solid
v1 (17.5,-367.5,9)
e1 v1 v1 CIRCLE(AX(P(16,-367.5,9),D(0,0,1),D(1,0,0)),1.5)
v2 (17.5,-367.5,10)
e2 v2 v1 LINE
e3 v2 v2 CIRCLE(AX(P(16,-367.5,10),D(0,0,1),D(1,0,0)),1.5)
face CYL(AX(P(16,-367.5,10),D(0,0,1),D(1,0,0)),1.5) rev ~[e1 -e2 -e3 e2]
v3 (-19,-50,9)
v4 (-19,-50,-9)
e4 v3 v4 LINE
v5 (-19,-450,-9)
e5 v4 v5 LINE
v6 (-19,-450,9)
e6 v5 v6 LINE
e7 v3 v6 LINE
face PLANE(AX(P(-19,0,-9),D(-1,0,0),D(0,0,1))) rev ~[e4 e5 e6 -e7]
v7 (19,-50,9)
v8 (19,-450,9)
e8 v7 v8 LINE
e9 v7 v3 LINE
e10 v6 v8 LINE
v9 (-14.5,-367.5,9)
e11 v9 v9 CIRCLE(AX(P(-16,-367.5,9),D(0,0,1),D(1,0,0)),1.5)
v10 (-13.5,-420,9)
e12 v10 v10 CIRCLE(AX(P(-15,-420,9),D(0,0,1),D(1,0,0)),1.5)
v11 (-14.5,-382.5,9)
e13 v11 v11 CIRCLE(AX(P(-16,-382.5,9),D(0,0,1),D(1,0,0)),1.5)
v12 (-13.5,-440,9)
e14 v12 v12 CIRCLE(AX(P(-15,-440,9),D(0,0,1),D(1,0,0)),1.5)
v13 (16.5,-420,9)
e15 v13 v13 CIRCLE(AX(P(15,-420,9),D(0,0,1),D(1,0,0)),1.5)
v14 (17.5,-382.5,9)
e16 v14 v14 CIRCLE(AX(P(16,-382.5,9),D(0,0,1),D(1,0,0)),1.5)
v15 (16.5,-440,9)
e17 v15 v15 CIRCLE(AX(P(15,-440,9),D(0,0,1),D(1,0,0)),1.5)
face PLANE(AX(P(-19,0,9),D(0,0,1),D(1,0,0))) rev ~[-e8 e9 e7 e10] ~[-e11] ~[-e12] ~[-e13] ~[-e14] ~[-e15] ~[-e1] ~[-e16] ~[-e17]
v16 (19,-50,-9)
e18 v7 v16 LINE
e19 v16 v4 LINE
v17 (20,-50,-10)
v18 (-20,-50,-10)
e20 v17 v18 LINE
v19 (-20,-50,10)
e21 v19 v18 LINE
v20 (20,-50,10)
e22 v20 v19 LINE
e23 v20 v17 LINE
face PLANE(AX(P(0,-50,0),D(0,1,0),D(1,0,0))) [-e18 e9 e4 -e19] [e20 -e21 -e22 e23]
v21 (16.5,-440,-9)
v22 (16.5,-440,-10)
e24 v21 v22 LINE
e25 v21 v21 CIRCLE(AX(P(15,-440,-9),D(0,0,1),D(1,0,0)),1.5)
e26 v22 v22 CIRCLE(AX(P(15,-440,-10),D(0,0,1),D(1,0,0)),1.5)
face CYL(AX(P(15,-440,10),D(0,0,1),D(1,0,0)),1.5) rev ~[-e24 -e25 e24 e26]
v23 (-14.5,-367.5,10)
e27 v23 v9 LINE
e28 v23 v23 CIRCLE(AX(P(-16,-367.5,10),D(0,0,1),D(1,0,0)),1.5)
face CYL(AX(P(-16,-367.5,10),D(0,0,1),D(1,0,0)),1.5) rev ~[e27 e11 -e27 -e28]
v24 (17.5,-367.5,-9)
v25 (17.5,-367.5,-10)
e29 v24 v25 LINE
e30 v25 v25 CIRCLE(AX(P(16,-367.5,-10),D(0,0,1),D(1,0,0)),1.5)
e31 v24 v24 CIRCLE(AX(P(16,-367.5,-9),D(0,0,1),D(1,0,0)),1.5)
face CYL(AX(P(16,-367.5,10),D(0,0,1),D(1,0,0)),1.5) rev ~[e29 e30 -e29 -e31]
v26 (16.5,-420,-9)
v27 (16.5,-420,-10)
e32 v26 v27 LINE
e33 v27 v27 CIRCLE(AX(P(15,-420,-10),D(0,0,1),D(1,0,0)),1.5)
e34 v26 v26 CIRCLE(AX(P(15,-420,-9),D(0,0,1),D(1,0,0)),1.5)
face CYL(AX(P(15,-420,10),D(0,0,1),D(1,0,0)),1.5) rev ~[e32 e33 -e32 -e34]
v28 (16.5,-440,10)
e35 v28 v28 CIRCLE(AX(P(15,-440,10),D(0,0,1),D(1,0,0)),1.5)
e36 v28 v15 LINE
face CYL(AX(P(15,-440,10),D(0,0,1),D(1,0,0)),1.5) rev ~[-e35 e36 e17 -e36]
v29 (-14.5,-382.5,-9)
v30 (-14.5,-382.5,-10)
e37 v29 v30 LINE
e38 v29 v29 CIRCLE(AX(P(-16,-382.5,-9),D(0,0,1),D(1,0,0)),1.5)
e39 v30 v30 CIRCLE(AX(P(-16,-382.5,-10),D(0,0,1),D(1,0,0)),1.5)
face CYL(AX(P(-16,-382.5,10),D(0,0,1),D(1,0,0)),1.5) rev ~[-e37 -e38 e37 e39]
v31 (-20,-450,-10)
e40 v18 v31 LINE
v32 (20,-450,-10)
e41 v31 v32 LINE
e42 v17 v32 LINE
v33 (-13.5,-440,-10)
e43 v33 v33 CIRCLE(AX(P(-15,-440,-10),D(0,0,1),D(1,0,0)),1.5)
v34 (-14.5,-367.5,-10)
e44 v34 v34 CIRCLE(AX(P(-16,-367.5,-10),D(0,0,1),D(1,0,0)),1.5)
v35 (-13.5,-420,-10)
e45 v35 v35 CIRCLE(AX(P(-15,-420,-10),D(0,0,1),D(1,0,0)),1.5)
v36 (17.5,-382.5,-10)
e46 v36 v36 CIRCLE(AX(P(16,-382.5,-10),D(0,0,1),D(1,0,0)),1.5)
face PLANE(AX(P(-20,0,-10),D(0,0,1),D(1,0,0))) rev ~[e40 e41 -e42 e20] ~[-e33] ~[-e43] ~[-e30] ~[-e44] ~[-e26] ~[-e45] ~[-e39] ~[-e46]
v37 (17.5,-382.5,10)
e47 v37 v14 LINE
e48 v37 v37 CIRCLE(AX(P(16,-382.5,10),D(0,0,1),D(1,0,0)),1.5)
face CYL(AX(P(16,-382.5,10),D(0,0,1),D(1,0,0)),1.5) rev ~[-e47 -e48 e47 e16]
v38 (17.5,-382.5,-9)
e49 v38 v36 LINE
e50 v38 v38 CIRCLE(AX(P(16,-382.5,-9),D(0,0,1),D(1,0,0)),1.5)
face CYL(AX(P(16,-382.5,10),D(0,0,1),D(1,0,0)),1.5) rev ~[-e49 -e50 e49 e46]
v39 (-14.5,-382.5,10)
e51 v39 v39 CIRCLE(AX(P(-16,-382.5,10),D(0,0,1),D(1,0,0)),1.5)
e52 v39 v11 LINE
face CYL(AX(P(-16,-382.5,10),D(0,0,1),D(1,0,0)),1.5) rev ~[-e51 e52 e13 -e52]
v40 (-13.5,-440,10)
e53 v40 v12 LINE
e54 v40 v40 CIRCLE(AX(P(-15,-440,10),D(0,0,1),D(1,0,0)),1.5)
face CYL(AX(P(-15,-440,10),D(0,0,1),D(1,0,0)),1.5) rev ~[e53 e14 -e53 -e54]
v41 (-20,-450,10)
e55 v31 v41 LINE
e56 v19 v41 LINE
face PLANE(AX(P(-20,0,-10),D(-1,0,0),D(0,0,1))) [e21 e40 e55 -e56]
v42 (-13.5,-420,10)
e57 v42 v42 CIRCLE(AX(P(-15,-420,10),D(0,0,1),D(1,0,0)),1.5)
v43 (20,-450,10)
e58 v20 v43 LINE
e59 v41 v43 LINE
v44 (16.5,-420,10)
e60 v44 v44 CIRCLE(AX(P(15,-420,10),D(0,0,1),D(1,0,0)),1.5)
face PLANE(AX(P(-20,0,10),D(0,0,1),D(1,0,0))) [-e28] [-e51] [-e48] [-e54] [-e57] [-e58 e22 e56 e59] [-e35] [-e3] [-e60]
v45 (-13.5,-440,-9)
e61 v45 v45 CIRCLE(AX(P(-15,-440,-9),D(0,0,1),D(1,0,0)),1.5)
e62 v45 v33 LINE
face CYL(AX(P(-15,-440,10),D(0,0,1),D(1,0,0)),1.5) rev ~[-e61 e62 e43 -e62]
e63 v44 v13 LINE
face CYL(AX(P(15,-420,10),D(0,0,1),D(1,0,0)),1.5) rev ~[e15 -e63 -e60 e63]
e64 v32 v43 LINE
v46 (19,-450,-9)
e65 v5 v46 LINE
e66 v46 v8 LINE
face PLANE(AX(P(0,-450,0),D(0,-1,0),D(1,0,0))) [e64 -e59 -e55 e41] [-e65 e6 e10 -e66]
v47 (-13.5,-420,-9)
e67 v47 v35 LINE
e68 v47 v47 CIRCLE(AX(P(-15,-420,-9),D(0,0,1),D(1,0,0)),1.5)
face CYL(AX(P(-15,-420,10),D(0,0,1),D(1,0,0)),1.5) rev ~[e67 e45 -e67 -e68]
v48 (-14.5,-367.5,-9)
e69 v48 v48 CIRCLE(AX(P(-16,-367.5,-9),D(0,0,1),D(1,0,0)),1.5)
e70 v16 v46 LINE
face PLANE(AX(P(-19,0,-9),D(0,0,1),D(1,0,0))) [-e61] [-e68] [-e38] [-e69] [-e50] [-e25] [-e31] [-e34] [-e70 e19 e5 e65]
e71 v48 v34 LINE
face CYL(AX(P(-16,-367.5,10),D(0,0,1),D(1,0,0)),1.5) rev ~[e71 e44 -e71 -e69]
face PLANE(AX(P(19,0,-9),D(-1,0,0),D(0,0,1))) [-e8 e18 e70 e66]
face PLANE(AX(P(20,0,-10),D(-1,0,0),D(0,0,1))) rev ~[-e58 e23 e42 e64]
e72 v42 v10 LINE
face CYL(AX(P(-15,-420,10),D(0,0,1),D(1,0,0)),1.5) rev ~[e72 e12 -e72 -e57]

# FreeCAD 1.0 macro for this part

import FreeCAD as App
import Part
import Sketcher

V = App.Vector
Q = App.Units.Quantity

doc = App.newDocument("Part")
params = doc.addObject("Spreadsheet::Sheet", "Params")
for row, (alias, value) in enumerate([
    ("sketch1_width", "40 mm"),
    ("sketch1_width2", "38 mm"),
    ("sketch1_height", "20 mm"),
    ("sketch1_height2", "18 mm"),
    ("pad1_length", "450 mm"),
    ("sketch2_diameter", "3 mm"),
    ("pocket1_length", "51 mm"),
    ("pocket2_length", "50 mm"),
], start=1):
    params.set(f"A{row}", alias)
    params.set(f"B{row}", "=" + value)
    params.setAlias(f"B{row}", alias)

body = doc.addObject("PartDesign::Body", "Body")

# Sketch on XZ plane
sketch1 = doc.addObject("Sketcher::SketchObject", "Sketch")
body.addObject(sketch1)
sketch1.AttachmentSupport = (doc.XZ_Plane, [""])
sketch1.MapMode = "FlatFace"
sketch1.addGeometry(Part.LineSegment(V(-20, 10, 0), V(-20, -10, 0)), False)
sketch1.addGeometry(Part.LineSegment(V(-20, -10, 0), V(20, -10, 0)), False)
sketch1.addGeometry(Part.LineSegment(V(20, -10, 0), V(20, 10, 0)), False)
sketch1.addGeometry(Part.LineSegment(V(20, 10, 0), V(-20, 10, 0)), False)
sketch1.addGeometry(Part.LineSegment(V(19, -9, 0), V(-19, -9, 0)), False)
sketch1.addGeometry(Part.LineSegment(V(-19, -9, 0), V(-19, 9, 0)), False)
sketch1.addGeometry(Part.LineSegment(V(-19, 9, 0), V(19, 9, 0)), False)
sketch1.addGeometry(Part.LineSegment(V(19, 9, 0), V(19, -9, 0)), False)
sketch1.addConstraint(Sketcher.Constraint("Coincident", 0, 2, 1, 1))
sketch1.addConstraint(Sketcher.Constraint("Coincident", 1, 2, 2, 1))
sketch1.addConstraint(Sketcher.Constraint("Coincident", 2, 2, 3, 1))
sketch1.addConstraint(Sketcher.Constraint("Coincident", 3, 2, 0, 1))
sketch1.addConstraint(Sketcher.Constraint("Coincident", 4, 2, 5, 1))
sketch1.addConstraint(Sketcher.Constraint("Coincident", 5, 2, 6, 1))
sketch1.addConstraint(Sketcher.Constraint("Coincident", 6, 2, 7, 1))
sketch1.addConstraint(Sketcher.Constraint("Coincident", 7, 2, 4, 1))
sketch1.addConstraint(Sketcher.Constraint("Vertical", 0))
sketch1.addConstraint(Sketcher.Constraint("Horizontal", 1))
sketch1.addConstraint(Sketcher.Constraint("Vertical", 2))
sketch1.addConstraint(Sketcher.Constraint("Horizontal", 3))
sketch1.addConstraint(Sketcher.Constraint("Horizontal", 4))
sketch1.addConstraint(Sketcher.Constraint("Vertical", 5))
sketch1.addConstraint(Sketcher.Constraint("Horizontal", 6))
sketch1.addConstraint(Sketcher.Constraint("Vertical", 7))
sketch1.addConstraint(Sketcher.Constraint("Symmetric", 0, 2, 2, 2, -1, 1))
sketch1.addConstraint(Sketcher.Constraint("Symmetric", 4, 2, 6, 2, -1, 1))
sketch1.addConstraint(Sketcher.Constraint("DistanceX", 1, 1, 1, 2, Q("40 mm")))
sketch1.addConstraint(Sketcher.Constraint("DistanceX", 4, 2, 4, 1, Q("38 mm")))
sketch1.addConstraint(Sketcher.Constraint("DistanceY", 0, 2, 0, 1, Q("20 mm")))
sketch1.addConstraint(Sketcher.Constraint("DistanceY", 5, 1, 5, 2, Q("18 mm")))
sketch1.setExpression("Constraints[18]", "Params.sketch1_width")
sketch1.setExpression("Constraints[19]", "Params.sketch1_width2")
sketch1.setExpression("Constraints[20]", "Params.sketch1_height")
sketch1.setExpression("Constraints[21]", "Params.sketch1_height2")
pad1 = doc.addObject("PartDesign::Pad", "Pad")
body.addObject(pad1)
pad1.Profile = sketch1
pad1.setExpression("Length", "Params.pad1_length")

# Sketch on XY plane
sketch2 = doc.addObject("Sketcher::SketchObject", "Sketch001")
body.addObject(sketch2)
sketch2.AttachmentSupport = (doc.XY_Plane, [""])
sketch2.MapMode = "FlatFace"
sketch2.AttachmentOffset = App.Placement(V(0, 0, 10), App.Rotation())
sketch2.addGeometry(Part.Circle(V(16, -382.5, 0), V(0, 0, 1), 1.5), False)
sketch2.addGeometry(Part.Circle(V(16, -367.5, 0), V(0, 0, 1), 1.5), False)
sketch2.addGeometry(Part.Circle(V(-16, -367.5, 0), V(0, 0, 1), 1.5), False)
sketch2.addGeometry(Part.Circle(V(-16, -382.5, 0), V(0, 0, 1), 1.5), False)
sketch2.addGeometry(Part.Circle(V(15, -420, 0), V(0, 0, 1), 1.5), False)
sketch2.addGeometry(Part.Circle(V(-15, -420, 0), V(0, 0, 1), 1.5), False)
sketch2.addGeometry(Part.Circle(V(-15, -440, 0), V(0, 0, 1), 1.5), False)
sketch2.addGeometry(Part.Circle(V(15, -440, 0), V(0, 0, 1), 1.5), False)
sketch2.addConstraint(Sketcher.Constraint("Equal", 0, 1))
sketch2.addConstraint(Sketcher.Constraint("Equal", 1, 2))
sketch2.addConstraint(Sketcher.Constraint("Equal", 2, 3))
sketch2.addConstraint(Sketcher.Constraint("Equal", 3, 4))
sketch2.addConstraint(Sketcher.Constraint("Equal", 4, 5))
sketch2.addConstraint(Sketcher.Constraint("Equal", 5, 6))
sketch2.addConstraint(Sketcher.Constraint("Equal", 6, 7))
sketch2.addConstraint(Sketcher.Constraint("Symmetric", 1, 3, 2, 3, -2))
sketch2.addConstraint(Sketcher.Constraint("Symmetric", 0, 3, 3, 3, -2))
sketch2.addConstraint(Sketcher.Constraint("Symmetric", 4, 3, 5, 3, -2))
sketch2.addConstraint(Sketcher.Constraint("Symmetric", 6, 3, 7, 3, -2))
sketch2.addConstraint(Sketcher.Constraint("Vertical", 0, 3, 1, 3))
sketch2.addConstraint(Sketcher.Constraint("Vertical", 5, 3, 6, 3))
sketch2.addConstraint(Sketcher.Constraint("Diameter", 0, Q("3 mm")))
sketch2.addConstraint(Sketcher.Constraint("DistanceX", -1, 1, 0, 3, Q("16 mm")))
sketch2.addConstraint(Sketcher.Constraint("DistanceX", -1, 1, 4, 3, Q("15 mm")))
sketch2.addConstraint(Sketcher.Constraint("DistanceY", 4, 3, -1, 1, Q("420 mm")))
sketch2.addConstraint(Sketcher.Constraint("DistanceY", 6, 3, -1, 1, Q("440 mm")))
sketch2.addConstraint(Sketcher.Constraint("DistanceY", 0, 3, 1, 3, Q("15 mm")))
sketch2.addConstraint(Sketcher.Constraint("DistanceY", 0, 3, -1, 1, Q("382.5 mm")))
sketch2.setExpression("Constraints[13]", "Params.sketch2_diameter")
pocket1 = doc.addObject("PartDesign::Pocket", "Pocket")
body.addObject(pocket1)
pocket1.Profile = sketch2
pocket1.setExpression("Length", "Params.pocket1_length")

# Sketch on XZ plane
sketch3 = doc.addObject("Sketcher::SketchObject", "Sketch002")
body.addObject(sketch3)
sketch3.AttachmentSupport = (doc.XZ_Plane, [""])
sketch3.MapMode = "FlatFace"
sketch3.addGeometry(Part.LineSegment(V(-25, -14, 0), V(-25, 14, 0)), False)
sketch3.addGeometry(Part.LineSegment(V(-25, 14, 0), V(25, 14, 0)), False)
sketch3.addGeometry(Part.LineSegment(V(25, 14, 0), V(25, -14, 0)), False)
sketch3.addGeometry(Part.LineSegment(V(25, -14, 0), V(-25, -14, 0)), False)
sketch3.addConstraint(Sketcher.Constraint("Coincident", 0, 2, 1, 1))
sketch3.addConstraint(Sketcher.Constraint("Coincident", 1, 2, 2, 1))
sketch3.addConstraint(Sketcher.Constraint("Coincident", 2, 2, 3, 1))
sketch3.addConstraint(Sketcher.Constraint("Coincident", 3, 2, 0, 1))
sketch3.addConstraint(Sketcher.Constraint("Vertical", 0))
sketch3.addConstraint(Sketcher.Constraint("Horizontal", 1))
sketch3.addConstraint(Sketcher.Constraint("Vertical", 2))
sketch3.addConstraint(Sketcher.Constraint("Horizontal", 3))
sketch3.addConstraint(Sketcher.Constraint("Symmetric", 0, 2, 2, 2, -1, 1))
sketch3.addConstraint(Sketcher.Constraint("DistanceX", 1, 1, 1, 2, Q("50.928856 mm")))
sketch3.addConstraint(Sketcher.Constraint("DistanceY", 0, 1, 0, 2, Q("27.036577 mm")))
pocket2 = doc.addObject("PartDesign::Pocket", "Pocket001")
body.addObject(pocket2)
pocket2.Profile = sketch3
pocket2.setExpression("Length", "Params.pocket2_length")
pocket2.Reversed = True

doc.recompute()
